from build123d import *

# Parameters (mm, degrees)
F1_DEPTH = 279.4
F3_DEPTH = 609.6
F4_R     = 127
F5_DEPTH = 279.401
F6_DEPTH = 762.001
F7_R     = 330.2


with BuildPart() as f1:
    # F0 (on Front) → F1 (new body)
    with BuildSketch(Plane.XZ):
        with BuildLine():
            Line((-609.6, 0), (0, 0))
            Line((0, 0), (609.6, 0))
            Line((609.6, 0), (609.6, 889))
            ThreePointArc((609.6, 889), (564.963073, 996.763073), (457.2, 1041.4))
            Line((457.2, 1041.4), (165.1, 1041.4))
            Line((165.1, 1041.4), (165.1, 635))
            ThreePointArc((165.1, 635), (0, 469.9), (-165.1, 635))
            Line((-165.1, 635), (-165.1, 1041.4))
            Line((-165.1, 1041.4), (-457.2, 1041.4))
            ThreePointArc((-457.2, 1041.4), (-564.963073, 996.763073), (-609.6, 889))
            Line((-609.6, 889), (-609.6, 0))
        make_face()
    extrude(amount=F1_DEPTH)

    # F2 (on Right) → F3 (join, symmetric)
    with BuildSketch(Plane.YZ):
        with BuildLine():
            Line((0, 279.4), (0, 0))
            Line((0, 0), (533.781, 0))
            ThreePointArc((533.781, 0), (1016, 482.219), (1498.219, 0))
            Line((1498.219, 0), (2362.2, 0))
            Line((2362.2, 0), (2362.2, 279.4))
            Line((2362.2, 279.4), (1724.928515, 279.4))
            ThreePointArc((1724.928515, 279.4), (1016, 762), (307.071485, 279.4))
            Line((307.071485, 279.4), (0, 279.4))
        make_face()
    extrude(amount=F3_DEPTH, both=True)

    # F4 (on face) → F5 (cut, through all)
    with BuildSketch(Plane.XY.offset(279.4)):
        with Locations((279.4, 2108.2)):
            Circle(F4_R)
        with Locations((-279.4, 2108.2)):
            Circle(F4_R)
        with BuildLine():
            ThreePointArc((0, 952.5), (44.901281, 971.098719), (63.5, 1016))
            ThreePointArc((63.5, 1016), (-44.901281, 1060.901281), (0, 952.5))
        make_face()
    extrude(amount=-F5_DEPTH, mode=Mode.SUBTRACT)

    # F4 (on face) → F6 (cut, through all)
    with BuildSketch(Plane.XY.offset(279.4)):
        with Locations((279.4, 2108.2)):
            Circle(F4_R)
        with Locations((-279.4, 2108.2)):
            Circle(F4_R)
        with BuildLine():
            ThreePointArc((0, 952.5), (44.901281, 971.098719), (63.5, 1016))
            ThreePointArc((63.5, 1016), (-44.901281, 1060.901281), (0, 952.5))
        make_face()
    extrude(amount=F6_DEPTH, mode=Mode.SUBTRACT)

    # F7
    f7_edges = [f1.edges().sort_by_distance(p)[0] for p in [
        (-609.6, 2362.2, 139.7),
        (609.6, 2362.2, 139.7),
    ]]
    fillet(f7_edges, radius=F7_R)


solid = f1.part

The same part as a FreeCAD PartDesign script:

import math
import FreeCAD as App
import Part
import Sketcher
from FreeCAD import Vector
Q = App.Units.Quantity


def edges_at(feature, points):
    """Names of the edges that pass closest to the given points."""
    edges = feature.Shape.Edges
    near = lambda p: min(range(len(edges)), key=lambda i: edges[i].distToShape(Part.Vertex(*p))[0])
    return sorted({f"Edge{near(p) + 1}" for p in points})

doc = App.newDocument("Part")
body = doc.addObject("PartDesign::Body", "Body")

# Sketch on XZ plane
sketch1 = body.newObject("Sketcher::SketchObject", "Sketch")
sketch1.AttachmentSupport = (doc.getObject("XZ_Plane"), [""])
sketch1.MapMode = "FlatFace"
sketch1.addGeometry([
    Part.LineSegment(Vector(-610, 0, 0), Vector(610, 0, 0)),  # 0
    Part.LineSegment(Vector(610, 0, 0), Vector(610, 889, 0)),  # 1
    Part.ArcOfCircle(Part.Circle(Vector(457, 889, 0), Vector(0, 0, 1), 152), math.radians(0), math.radians(90)),  # 2
    Part.LineSegment(Vector(457, 1041, 0), Vector(165, 1041, 0)),  # 3
    Part.LineSegment(Vector(165, 1041, 0), Vector(165, 635, 0)),  # 4
    Part.ArcOfCircle(Part.Circle(Vector(0, 635, 0), Vector(0, 0, 1), 165), math.radians(180), math.radians(360)),  # 5
    Part.LineSegment(Vector(-165, 635, 0), Vector(-165, 1041, 0)),  # 6
    Part.LineSegment(Vector(-165, 1041, 0), Vector(-457, 1041, 0)),  # 7
    Part.ArcOfCircle(Part.Circle(Vector(-457, 889, 0), Vector(0, 0, 1), 152), math.radians(90), math.radians(180)),  # 8
    Part.LineSegment(Vector(-610, 889, 0), Vector(-610, 0, 0)),  # 9
], False)
sketch1.addConstraint([
    Sketcher.Constraint("Coincident", 0, 2, 1, 1),
    Sketcher.Constraint("Tangent", 1, 2, 2, 1),
    Sketcher.Constraint("Tangent", 2, 2, 3, 1),
    Sketcher.Constraint("Coincident", 3, 2, 4, 1),
    Sketcher.Constraint("Tangent", 4, 2, 5, 2),
    Sketcher.Constraint("Tangent", 5, 1, 6, 1),
    Sketcher.Constraint("Coincident", 6, 2, 7, 1),
    Sketcher.Constraint("Tangent", 7, 2, 8, 1),
    Sketcher.Constraint("Tangent", 8, 2, 9, 1),
    Sketcher.Constraint("Coincident", 9, 2, 0, 1),
    Sketcher.Constraint("Horizontal", 0),
    Sketcher.Constraint("Vertical", 1),
    Sketcher.Constraint("Horizontal", 3),
    Sketcher.Constraint("Vertical", 4),
    Sketcher.Constraint("Vertical", 6),
    Sketcher.Constraint("Horizontal", 7),
    Sketcher.Constraint("Vertical", 9),
    Sketcher.Constraint("Equal", 2, 8),
    Sketcher.Constraint("Symmetric", 0, 2, 9, 2, -1, 1),
    Sketcher.Constraint("Symmetric", 3, 2, 6, 2, -2),
    Sketcher.Constraint("Radius", 2, Q("6.0000001 in")),
    Sketcher.Constraint("Radius", 5, Q("6.5 in")),
    Sketcher.Constraint("DistanceX", 0, 1, 0, 2, Q("48 in")),
    Sketcher.Constraint("DistanceY", 1, 1, 1, 2, Q("35 in")),
    Sketcher.Constraint("DistanceY", 4, 2, 4, 1, Q("16 in")),
])
pad1 = body.newObject("PartDesign::Pad", "Pad")
pad1.Profile = sketch1
pad1.Length = Q("11 in")

# Sketch on YZ plane
sketch2 = body.newObject("Sketcher::SketchObject", "Sketch001")
sketch2.AttachmentSupport = (doc.getObject("YZ_Plane"), [""])
sketch2.MapMode = "FlatFace"
sketch2.addGeometry([
    Part.LineSegment(Vector(0, 279, 0), Vector(0, 0, 0)),  # 0
    Part.LineSegment(Vector(0, 0, 0), Vector(534, 0, 0)),  # 1
    Part.ArcOfCircle(Part.Circle(Vector(1016, 0, 0), Vector(0, 0, 1), 482), math.radians(0), math.radians(180)),  # 2
    Part.LineSegment(Vector(1498, 0, 0), Vector(2362, 0, 0)),  # 3
    Part.LineSegment(Vector(2362, 0, 0), Vector(2362, 279, 0)),  # 4
    Part.LineSegment(Vector(2362, 279, 0), Vector(1725, 279, 0)),  # 5
    Part.ArcOfCircle(Part.Circle(Vector(1016, 0, 0), Vector(0, 0, 1), 762), math.radians(22), math.radians(158)),  # 6
    Part.LineSegment(Vector(307, 279, 0), Vector(0, 279, 0)),  # 7
], False)
sketch2.addConstraint([
    Sketcher.Constraint("Coincident", 0, 2, 1, 1),
    Sketcher.Constraint("Coincident", 1, 2, 2, 2),
    Sketcher.Constraint("Coincident", 2, 1, 3, 1),
    Sketcher.Constraint("Coincident", 3, 2, 4, 1),
    Sketcher.Constraint("Coincident", 4, 2, 5, 1),
    Sketcher.Constraint("Coincident", 5, 2, 6, 1),
    Sketcher.Constraint("Coincident", 6, 2, 7, 1),
    Sketcher.Constraint("Coincident", 7, 2, 0, 1),
    Sketcher.Constraint("Vertical", 0),
    Sketcher.Constraint("Horizontal", 1),
    Sketcher.Constraint("Horizontal", 3),
    Sketcher.Constraint("Vertical", 4),
    Sketcher.Constraint("Horizontal", 5),
    Sketcher.Constraint("Horizontal", 7),
    Sketcher.Constraint("Coincident", 0, 2, -1, 1),
    Sketcher.Constraint("Coincident", 6, 3, 2, 3),
    Sketcher.Constraint("PointOnObject", 2, 3, -1),
    Sketcher.Constraint("PointOnObject", 3, 2, -1),
    Sketcher.Constraint("Equal", 0, 4),
    Sketcher.Constraint("Radius", 6, Q("30 in")),
    Sketcher.Constraint("DistanceY", 0, 2, 0, 1, Q("11 in")),
    Sketcher.Constraint("DistanceX", -1, 1, 2, 3, Q("40 in")),
    Sketcher.Constraint("DistanceX", -1, 1, 3, 2, Q("93 in")),
    Sketcher.Constraint("Radius", 2, Q("18.985 in")),
])
pad2 = body.newObject("PartDesign::Pad", "Pad001")
pad2.Profile = sketch2
pad2.Length = Q("48 in")
pad2.Midplane = True

# Sketch on XY plane
sketch3 = body.newObject("Sketcher::SketchObject", "Sketch002")
sketch3.AttachmentSupport = (doc.getObject("XY_Plane"), [""])
sketch3.MapMode = "FlatFace"
sketch3.AttachmentOffset = App.Placement(Vector(0, 0, 11 * 25.4), App.Rotation())
sketch3.addGeometry([
    Part.Circle(Vector(279, 2108, 0), Vector(0, 0, 1), 127),
    Part.Circle(Vector(-279, 2108, 0), Vector(0, 0, 1), 127),
    Part.ArcOfCircle(Part.Circle(Vector(0, 1016, 0), Vector(0, 0, 1), 63), math.radians(-90), math.radians(0)),
    Part.ArcOfCircle(Part.Circle(Vector(0, 1016, 0), Vector(0, 0, 1), 64), math.radians(0), math.radians(270)),
], False)
sketch3.addConstraint([
    Sketcher.Constraint("Tangent", 2, 1, 3, 2),
    Sketcher.Constraint("Coincident", 3, 1, 2, 2),
    Sketcher.Constraint("Equal", 0, 1),
    Sketcher.Constraint("Symmetric", 0, 3, 1, 3, -2),
    Sketcher.Constraint("PointOnObject", 2, 3, -2),
    Sketcher.Constraint("PointOnObject", 2, 1, -2),
    Sketcher.Constraint("Horizontal", 2, 3, 3, 1),
    Sketcher.Constraint("Diameter", 0, Q("10 in")),
    Sketcher.Constraint("Radius", 2, Q("2.4999999 in")),
    Sketcher.Constraint("DistanceX", -1, 1, 0, 3, Q("11 in")),
    Sketcher.Constraint("DistanceY", -1, 1, 0, 3, Q("83 in")),
    Sketcher.Constraint("DistanceY", -1, 1, 2, 3, Q("39.9999999 in")),
])
pocket1 = body.newObject("PartDesign::Pocket", "Pocket")
pocket1.Profile = sketch3
pocket1.Type = "ThroughAll"

# Sketch on XY plane
sketch4 = body.newObject("Sketcher::SketchObject", "Sketch003")
sketch4.AttachmentSupport = (doc.getObject("XY_Plane"), [""])
sketch4.MapMode = "FlatFace"
sketch4.AttachmentOffset = App.Placement(Vector(0, 0, 11 * 25.4), App.Rotation())
sketch4.addGeometry([
    Part.Circle(Vector(279, 2108, 0), Vector(0, 0, 1), 127),
    Part.Circle(Vector(-279, 2108, 0), Vector(0, 0, 1), 127),
    Part.ArcOfCircle(Part.Circle(Vector(0, 1016, 0), Vector(0, 0, 1), 63), math.radians(-90), math.radians(0)),
    Part.ArcOfCircle(Part.Circle(Vector(0, 1016, 0), Vector(0, 0, 1), 64), math.radians(0), math.radians(270)),
], False)
sketch4.addConstraint([
    Sketcher.Constraint("Tangent", 2, 1, 3, 2),
    Sketcher.Constraint("Coincident", 3, 1, 2, 2),
    Sketcher.Constraint("Equal", 0, 1),
    Sketcher.Constraint("Symmetric", 0, 3, 1, 3, -2),
    Sketcher.Constraint("PointOnObject", 2, 3, -2),
    Sketcher.Constraint("PointOnObject", 2, 1, -2),
    Sketcher.Constraint("Horizontal", 2, 3, 3, 1),
    Sketcher.Constraint("Diameter", 0, Q("10 in")),
    Sketcher.Constraint("Radius", 2, Q("2.4999999 in")),
    Sketcher.Constraint("DistanceX", -1, 1, 0, 3, Q("11 in")),
    Sketcher.Constraint("DistanceY", -1, 1, 0, 3, Q("83 in")),
    Sketcher.Constraint("DistanceY", -1, 1, 2, 3, Q("39.9999999 in")),
])
pocket2 = body.newObject("PartDesign::Pocket", "Pocket001")
pocket2.Profile = sketch4
pocket2.Type = "ThroughAll"
pocket2.Reversed = True
doc.recompute()

fillet = body.newObject("PartDesign::Fillet", "Fillet")
fillet.Base = (pocket2, edges_at(pocket2, [(-609.6, 2362.2, 139.7), (609.6, 2362.2, 139.7)]))
fillet.Radius = Q("13 in")

doc.recompute()
